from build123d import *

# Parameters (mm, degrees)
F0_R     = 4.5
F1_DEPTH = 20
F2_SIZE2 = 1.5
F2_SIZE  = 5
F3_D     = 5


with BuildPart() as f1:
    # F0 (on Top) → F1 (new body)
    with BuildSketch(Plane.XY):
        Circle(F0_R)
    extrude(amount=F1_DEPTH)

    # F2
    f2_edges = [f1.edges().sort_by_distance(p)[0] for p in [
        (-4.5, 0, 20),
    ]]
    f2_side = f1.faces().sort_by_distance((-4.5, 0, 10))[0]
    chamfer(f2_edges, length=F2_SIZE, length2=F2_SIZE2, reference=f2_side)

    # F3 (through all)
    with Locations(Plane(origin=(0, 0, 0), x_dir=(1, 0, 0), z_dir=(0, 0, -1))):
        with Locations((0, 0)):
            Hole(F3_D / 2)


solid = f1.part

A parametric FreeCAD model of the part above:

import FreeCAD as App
import Part
import Sketcher
Q = App.Units.Quantity


def edges_at(feature, points):
    """Names of the edges that pass closest to the given points."""
    edges = feature.Shape.Edges
    near = lambda p: min(range(len(edges)), key=lambda i: edges[i].distToShape(Part.Vertex(*p))[0])
    return sorted({f"Edge{near(p) + 1}" for p in points})

doc = App.newDocument("Part")
body = doc.addObject("PartDesign::Body", "Body")

# Sketch on XY plane
sketch1 = doc.addObject("Sketcher::SketchObject", "Sketch")
body.addObject(sketch1)
sketch1.AttachmentSupport = (doc.XY_Plane, [""])
sketch1.MapMode = "FlatFace"
sketch1.addGeometry(Part.Circle(App.Vector(0, 0, 0), App.Vector(0, 0, 1), 4.5), False)
sketch1.addConstraint(Sketcher.Constraint("Coincident", 0, 3, -1, 1))
sketch1.addConstraint(Sketcher.Constraint("Diameter", 0, Q("9 mm")))
pad1 = doc.addObject("PartDesign::Pad", "Pad")
body.addObject(pad1)
pad1.Profile = sketch1
pad1.Length = 20
doc.recompute()

chamfer = doc.addObject("PartDesign::Chamfer", "Chamfer")
body.addObject(chamfer)
chamfer.Base = (pad1, edges_at(pad1, [(-4.5, 0, 20)]))
chamfer.ChamferType = "Two distances"
chamfer.Size = 5
chamfer.Size2 = 1.5

# Sketch on XY plane
sketch2 = doc.addObject("Sketcher::SketchObject", "Sketch001")
body.addObject(sketch2)
sketch2.AttachmentSupport = (doc.XY_Plane, [""])
sketch2.MapMode = "FlatFace"
sketch2.addGeometry(Part.Circle(App.Vector(0, 0, 0), App.Vector(0, 0, 1), 2.5), False)
sketch2.addConstraint(Sketcher.Constraint("Coincident", 0, 3, -1, 1))
sketch2.addConstraint(Sketcher.Constraint("Diameter", 0, Q("5 mm")))
doc.recompute()
hole = doc.addObject("PartDesign::Hole", "Hole")
body.addObject(hole)
hole.Profile = sketch2
hole.ThreadType = "None"
hole.Diameter = 5
hole.DepthType = "ThroughAll"
hole.Reversed = True

doc.recompute()
